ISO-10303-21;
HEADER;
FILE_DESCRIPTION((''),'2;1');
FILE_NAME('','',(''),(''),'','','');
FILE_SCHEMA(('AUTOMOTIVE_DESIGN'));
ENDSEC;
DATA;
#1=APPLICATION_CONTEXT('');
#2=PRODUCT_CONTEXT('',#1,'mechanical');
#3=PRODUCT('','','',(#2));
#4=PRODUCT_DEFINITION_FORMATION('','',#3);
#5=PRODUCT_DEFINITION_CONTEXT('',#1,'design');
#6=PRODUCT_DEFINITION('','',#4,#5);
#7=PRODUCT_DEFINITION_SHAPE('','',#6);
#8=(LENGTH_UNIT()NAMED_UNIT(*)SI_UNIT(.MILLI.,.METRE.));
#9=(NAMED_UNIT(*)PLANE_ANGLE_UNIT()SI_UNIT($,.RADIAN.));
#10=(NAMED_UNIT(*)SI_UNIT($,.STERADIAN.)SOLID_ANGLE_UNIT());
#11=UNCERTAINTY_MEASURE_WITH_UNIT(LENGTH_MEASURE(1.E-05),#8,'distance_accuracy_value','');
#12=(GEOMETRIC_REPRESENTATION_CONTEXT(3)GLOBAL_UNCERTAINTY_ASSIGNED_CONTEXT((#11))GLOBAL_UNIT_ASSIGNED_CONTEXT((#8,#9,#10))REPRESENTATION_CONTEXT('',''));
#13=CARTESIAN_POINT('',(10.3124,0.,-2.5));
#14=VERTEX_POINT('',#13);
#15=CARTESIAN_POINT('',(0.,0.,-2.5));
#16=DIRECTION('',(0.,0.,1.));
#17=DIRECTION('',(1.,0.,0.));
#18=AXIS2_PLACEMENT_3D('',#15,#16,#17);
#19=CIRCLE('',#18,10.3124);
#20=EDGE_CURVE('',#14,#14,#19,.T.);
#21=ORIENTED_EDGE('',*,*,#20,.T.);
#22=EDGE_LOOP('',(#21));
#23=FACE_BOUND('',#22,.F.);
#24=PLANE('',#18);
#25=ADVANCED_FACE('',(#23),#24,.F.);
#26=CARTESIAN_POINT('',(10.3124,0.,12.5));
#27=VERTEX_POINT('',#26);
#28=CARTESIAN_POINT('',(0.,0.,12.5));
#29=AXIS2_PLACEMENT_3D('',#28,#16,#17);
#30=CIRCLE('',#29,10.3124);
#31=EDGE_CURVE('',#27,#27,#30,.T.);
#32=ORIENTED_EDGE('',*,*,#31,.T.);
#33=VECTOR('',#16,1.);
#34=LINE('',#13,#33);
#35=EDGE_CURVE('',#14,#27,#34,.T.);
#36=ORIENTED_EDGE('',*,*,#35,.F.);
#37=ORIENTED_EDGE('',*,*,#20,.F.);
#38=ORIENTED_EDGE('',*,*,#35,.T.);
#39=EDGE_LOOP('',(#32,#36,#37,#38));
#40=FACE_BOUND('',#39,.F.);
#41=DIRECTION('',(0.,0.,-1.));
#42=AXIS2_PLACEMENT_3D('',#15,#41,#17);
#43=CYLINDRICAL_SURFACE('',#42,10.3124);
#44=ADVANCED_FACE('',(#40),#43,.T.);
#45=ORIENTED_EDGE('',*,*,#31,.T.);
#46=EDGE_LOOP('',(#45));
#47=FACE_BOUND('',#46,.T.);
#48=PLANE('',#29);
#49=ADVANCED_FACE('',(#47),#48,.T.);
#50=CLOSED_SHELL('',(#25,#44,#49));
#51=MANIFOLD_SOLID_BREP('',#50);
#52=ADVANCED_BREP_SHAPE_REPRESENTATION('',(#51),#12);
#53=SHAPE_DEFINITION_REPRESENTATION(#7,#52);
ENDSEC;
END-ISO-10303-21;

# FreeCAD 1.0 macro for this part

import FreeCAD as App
import Part
import Sketcher

doc = App.newDocument("Part")
body = doc.addObject("PartDesign::Body", "Body")

# Sketch on XY plane
sketch1 = doc.addObject("Sketcher::SketchObject", "Sketch")
body.addObject(sketch1)
sketch1.AttachmentSupport = (doc.XY_Plane, [""])
sketch1.MapMode = "FlatFace"
sketch1.AttachmentOffset = App.Placement(App.Vector(0, 0, -2.5), App.Rotation())
sketch1.addGeometry(Part.Circle(App.Vector(0, 0, 0), App.Vector(0, 0, 1), 10), False)
sketch1.addConstraint([
    Sketcher.Constraint("Coincident", 0, 3, -1, 1),
    Sketcher.Constraint("Diameter", 0, 20.6248),
])
pad1 = doc.addObject("PartDesign::Pad", "Pad")
body.addObject(pad1)
pad1.Profile = sketch1
pad1.Length = 15

doc.recompute()
